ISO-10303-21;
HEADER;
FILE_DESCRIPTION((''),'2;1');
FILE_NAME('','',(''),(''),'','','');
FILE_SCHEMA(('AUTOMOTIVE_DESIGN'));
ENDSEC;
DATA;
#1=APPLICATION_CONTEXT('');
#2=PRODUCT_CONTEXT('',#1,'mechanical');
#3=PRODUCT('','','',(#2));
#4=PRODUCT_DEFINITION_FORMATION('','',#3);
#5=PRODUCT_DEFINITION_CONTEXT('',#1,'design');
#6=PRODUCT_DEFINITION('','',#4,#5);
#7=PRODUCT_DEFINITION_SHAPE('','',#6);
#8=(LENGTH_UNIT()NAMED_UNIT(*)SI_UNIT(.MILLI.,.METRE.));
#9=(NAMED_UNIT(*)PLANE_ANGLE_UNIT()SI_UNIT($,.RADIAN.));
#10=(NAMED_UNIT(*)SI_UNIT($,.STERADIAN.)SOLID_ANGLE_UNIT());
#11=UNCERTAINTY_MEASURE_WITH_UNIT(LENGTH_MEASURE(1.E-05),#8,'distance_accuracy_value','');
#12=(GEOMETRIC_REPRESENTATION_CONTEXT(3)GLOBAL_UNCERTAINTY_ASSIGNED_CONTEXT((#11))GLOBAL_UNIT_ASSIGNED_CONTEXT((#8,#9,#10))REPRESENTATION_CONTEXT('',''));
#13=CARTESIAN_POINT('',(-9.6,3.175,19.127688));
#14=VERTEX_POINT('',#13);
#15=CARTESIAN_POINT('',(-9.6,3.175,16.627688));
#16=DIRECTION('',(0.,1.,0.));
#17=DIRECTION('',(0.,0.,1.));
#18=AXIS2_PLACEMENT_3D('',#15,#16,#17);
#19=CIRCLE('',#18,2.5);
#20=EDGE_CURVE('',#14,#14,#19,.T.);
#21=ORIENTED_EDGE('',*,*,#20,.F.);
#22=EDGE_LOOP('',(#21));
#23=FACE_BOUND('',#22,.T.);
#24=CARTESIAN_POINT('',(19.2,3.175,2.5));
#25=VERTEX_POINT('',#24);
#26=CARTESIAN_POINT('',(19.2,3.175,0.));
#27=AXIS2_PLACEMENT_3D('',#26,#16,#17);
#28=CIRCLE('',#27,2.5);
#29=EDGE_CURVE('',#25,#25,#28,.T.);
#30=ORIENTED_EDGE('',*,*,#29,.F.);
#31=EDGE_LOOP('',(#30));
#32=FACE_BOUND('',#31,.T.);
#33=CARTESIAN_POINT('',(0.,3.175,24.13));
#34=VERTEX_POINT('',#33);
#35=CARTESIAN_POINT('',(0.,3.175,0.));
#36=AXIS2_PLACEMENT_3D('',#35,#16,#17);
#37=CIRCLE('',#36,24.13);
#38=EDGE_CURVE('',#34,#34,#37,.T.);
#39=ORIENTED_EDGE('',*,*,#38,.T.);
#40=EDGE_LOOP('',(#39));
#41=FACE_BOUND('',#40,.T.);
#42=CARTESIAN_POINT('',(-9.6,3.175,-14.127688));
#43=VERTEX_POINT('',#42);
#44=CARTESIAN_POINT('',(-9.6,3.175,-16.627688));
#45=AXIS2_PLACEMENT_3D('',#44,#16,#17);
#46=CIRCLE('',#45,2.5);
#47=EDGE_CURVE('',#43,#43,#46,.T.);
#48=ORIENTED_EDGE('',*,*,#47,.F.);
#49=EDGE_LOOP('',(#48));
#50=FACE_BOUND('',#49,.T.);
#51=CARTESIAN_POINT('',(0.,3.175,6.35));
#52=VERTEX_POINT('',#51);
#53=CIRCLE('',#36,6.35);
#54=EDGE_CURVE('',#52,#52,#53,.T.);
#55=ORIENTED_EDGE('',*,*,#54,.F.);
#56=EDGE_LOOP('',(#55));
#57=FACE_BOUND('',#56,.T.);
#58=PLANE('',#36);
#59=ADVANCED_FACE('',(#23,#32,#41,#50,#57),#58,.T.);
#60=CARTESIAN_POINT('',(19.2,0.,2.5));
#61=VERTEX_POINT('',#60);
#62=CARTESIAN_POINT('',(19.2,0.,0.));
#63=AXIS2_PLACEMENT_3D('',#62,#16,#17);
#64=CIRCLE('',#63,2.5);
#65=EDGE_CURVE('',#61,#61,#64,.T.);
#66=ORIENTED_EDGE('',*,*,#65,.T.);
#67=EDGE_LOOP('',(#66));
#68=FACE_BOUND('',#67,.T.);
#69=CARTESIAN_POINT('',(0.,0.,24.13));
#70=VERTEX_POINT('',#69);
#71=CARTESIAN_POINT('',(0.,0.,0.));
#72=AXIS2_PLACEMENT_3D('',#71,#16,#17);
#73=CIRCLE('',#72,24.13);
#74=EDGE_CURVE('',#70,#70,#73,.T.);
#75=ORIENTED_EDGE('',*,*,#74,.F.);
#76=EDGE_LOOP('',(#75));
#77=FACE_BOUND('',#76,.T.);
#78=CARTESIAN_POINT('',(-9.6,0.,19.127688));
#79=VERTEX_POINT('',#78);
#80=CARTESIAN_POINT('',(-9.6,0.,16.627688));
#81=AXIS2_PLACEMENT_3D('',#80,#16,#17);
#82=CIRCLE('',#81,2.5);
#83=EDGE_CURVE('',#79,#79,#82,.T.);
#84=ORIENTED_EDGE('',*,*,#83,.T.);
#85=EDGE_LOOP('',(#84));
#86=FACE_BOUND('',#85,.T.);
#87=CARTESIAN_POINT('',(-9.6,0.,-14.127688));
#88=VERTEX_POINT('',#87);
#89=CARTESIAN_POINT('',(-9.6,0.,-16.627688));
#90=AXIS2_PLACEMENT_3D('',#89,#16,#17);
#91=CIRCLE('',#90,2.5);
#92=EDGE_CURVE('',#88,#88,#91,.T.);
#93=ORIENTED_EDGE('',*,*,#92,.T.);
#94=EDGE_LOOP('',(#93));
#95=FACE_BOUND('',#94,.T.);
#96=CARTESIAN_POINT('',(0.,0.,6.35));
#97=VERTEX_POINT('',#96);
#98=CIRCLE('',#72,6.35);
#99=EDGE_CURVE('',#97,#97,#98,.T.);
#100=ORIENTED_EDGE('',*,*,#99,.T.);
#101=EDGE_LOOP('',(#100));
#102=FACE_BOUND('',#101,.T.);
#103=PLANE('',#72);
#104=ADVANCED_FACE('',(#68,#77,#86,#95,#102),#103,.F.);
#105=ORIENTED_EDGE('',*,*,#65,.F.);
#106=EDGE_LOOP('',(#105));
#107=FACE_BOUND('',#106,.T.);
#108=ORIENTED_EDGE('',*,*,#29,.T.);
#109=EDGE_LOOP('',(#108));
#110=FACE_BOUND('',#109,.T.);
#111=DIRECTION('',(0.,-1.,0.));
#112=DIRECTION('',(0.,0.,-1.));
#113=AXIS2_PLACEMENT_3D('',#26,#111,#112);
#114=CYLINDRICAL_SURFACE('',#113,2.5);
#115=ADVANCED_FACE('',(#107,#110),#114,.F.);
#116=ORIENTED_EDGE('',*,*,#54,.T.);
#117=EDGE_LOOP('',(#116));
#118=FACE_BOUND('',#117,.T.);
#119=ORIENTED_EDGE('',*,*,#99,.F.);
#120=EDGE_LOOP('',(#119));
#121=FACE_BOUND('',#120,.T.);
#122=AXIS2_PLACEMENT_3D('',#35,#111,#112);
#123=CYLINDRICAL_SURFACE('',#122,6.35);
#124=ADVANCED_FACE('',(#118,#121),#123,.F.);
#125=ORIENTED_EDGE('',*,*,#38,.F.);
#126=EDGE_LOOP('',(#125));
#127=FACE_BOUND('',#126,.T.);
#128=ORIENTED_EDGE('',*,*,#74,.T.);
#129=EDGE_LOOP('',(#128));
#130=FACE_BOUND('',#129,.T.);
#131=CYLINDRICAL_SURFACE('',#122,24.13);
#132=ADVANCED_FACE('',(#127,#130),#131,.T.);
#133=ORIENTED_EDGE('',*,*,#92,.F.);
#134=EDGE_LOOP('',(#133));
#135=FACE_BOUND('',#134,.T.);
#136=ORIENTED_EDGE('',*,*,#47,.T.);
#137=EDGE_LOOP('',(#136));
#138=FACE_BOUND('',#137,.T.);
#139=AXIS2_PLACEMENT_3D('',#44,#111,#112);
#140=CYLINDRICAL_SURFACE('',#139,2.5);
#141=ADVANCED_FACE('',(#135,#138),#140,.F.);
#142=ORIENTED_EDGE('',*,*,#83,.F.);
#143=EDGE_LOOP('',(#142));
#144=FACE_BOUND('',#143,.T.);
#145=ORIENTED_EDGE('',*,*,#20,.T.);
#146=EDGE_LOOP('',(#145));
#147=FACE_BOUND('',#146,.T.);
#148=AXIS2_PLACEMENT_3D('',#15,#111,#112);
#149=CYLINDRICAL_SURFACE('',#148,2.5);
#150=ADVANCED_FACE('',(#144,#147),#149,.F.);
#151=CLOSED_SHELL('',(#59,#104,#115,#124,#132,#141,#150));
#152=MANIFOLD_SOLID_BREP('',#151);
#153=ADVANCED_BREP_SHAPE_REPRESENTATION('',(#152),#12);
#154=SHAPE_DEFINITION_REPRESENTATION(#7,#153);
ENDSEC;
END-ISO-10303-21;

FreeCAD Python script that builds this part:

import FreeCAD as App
import Part
import Sketcher
Q = App.Units.Quantity

doc = App.newDocument("Part")
body = doc.addObject("PartDesign::Body", "Body")

# Sketch on XZ plane
sketch1 = body.newObject("Sketcher::SketchObject", "Sketch")
sketch1.AttachmentSupport = (doc.getObject("XZ_Plane"), [""])
sketch1.MapMode = "FlatFace"
sketch1.addGeometry([
    Part.Circle(App.Vector(0, 0, 0), App.Vector(0, 0, 1), 24.13),  # 0
    Part.Circle(App.Vector(-9.6, 16.627688, 0), App.Vector(0, 0, 1), 2.5),  # 1
    Part.Circle(App.Vector(0, 0, 0), App.Vector(0, 0, 1), 6.35),  # 2
    Part.Circle(App.Vector(-9.6, -16.627688, 0), App.Vector(0, 0, 1), 2.5),  # 3
    Part.Circle(App.Vector(19.2, 0, 0), App.Vector(0, 0, 1), 2.5),  # 4
], False)
sketch1.addConstraint([
    Sketcher.Constraint("Coincident", 0, 3, -1, 1),
    Sketcher.Constraint("Coincident", 2, 3, -1, 1),
    Sketcher.Constraint("Equal", 1, 3),
    Sketcher.Constraint("Equal", 3, 4),
    Sketcher.Constraint("Symmetric", 1, 3, 3, 3, -1),
    Sketcher.Constraint("PointOnObject", 4, 3, -1),
    Sketcher.Constraint("Diameter", 0, Q("1.9 in")),
    Sketcher.Constraint("Diameter", 2, Q("0.5 in")),
    Sketcher.Constraint("Diameter", 1, 5.0),
    Sketcher.Constraint("DistanceX", 1, 3, -1, 1, 9.6),
    Sketcher.Constraint("DistanceX", -1, 1, 4, 3, 19.2),
    Sketcher.Constraint("DistanceY", -1, 1, 1, 3, 16.627688),
])
pad1 = body.newObject("PartDesign::Pad", "Pad")
pad1.Profile = sketch1
pad1.Length = Q("0.125 in")
pad1.Reversed = True

doc.recompute()
